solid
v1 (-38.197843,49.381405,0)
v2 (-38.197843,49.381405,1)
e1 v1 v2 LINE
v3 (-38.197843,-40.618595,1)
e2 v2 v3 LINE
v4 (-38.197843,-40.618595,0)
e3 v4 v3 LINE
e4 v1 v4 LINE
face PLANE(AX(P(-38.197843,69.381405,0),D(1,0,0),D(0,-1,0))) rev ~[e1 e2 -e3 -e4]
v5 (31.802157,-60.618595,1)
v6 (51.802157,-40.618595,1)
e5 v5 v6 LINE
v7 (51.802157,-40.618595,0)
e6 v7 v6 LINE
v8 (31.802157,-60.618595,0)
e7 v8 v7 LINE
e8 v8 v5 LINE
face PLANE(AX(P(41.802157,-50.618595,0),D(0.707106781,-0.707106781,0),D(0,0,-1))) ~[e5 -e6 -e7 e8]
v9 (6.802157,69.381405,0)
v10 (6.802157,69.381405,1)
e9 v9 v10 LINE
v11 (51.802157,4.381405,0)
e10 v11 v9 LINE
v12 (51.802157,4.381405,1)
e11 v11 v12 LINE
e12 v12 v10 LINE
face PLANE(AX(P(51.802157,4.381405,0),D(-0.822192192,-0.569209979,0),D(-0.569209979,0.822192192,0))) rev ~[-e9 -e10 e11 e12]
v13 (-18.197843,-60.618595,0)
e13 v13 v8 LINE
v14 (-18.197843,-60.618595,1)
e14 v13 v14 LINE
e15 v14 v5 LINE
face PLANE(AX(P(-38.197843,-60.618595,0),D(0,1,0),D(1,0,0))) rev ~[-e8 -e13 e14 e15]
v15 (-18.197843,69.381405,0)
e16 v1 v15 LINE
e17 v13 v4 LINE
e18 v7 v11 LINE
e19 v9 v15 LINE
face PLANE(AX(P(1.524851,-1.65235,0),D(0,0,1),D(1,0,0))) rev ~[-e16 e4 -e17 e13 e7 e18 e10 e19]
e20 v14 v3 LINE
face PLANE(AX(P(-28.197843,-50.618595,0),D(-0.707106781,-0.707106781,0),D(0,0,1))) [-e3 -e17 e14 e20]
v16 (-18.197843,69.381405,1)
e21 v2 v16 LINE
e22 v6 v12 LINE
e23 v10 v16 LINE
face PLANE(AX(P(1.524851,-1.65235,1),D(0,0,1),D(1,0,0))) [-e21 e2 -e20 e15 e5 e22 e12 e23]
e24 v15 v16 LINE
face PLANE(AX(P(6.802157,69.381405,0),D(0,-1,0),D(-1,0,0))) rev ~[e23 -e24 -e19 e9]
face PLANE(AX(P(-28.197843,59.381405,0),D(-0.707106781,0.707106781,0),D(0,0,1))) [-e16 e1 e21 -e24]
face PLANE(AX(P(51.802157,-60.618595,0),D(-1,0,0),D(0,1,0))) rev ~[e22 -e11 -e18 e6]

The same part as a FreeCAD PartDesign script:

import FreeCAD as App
import Part
import Sketcher

V = App.Vector
Q = App.Units.Quantity


def edges_at(feature, points):
    """Names of the edges that pass closest to the given points."""
    edges = feature.Shape.Edges
    near = lambda p: min(range(len(edges)), key=lambda i: edges[i].distToShape(Part.Vertex(*p))[0])
    return sorted({f"Edge{near(p) + 1}" for p in points})


def add_polygon(sketch, points):
    """Adds a closed chain of lines whose ends are joined by coincident constraints."""
    first, n = sketch.GeometryCount, len(points)
    for a, b in zip(points, points[1:] + points[:1]):
        sketch.addGeometry(Part.LineSegment(App.Vector(*a, 0), App.Vector(*b, 0)), False)
    for i in range(n):
        sketch.addConstraint(Sketcher.Constraint("Coincident", first + i, 2, first + (i + 1) % n, 1))

doc = App.newDocument("Part")
body = doc.addObject("PartDesign::Body", "Body")

sketch1 = doc.addObject("Sketcher::SketchObject", "Sketch")
body.addObject(sketch1)
sketch1.AttachmentSupport = (doc.XY_Plane, [""])
sketch1.MapMode = "FlatFace"
add_polygon(sketch1, [(7, 69), (-38, 69), (-38, -61), (52, -61), (52, 4)])
sketch1.addConstraint([
    Sketcher.Constraint("Horizontal", 0),
    Sketcher.Constraint("Vertical", 1),
    Sketcher.Constraint("Horizontal", 2),
    Sketcher.Constraint("Vertical", 3),
    Sketcher.Constraint("DistanceX", 0, 2, 0, 1, Q("45 mm")),
    Sketcher.Constraint("DistanceX", 2, 1, 2, 2, Q("90 mm")),
    Sketcher.Constraint("DistanceY", 1, 2, 1, 1, Q("130 mm")),
    Sketcher.Constraint("DistanceY", 3, 1, 3, 2, Q("65 mm")),
    Sketcher.Constraint("DistanceX", 0, 2, -1, 1, Q("38.197843 mm")),
    Sketcher.Constraint("DistanceY", -1, 1, 0, 2, Q("69.381405 mm")),
])
pad1 = doc.addObject("PartDesign::Pad", "Pad")
body.addObject(pad1)
pad1.Profile = sketch1
pad1.Length = 1
doc.recompute()

chamfer = doc.addObject("PartDesign::Chamfer", "Chamfer")
body.addObject(chamfer)
chamfer.Base = (pad1, edges_at(pad1, [(51.802, -60.619, 0.5)]))
chamfer.Size = 20
doc.recompute()

chamfer2 = doc.addObject("PartDesign::Chamfer", "Chamfer001")
body.addObject(chamfer2)
chamfer2.Base = (chamfer, edges_at(chamfer, [(-38.198, -60.619, 0.5)]))
chamfer2.Size = 20
doc.recompute()

chamfer3 = doc.addObject("PartDesign::Chamfer", "Chamfer002")
body.addObject(chamfer3)
chamfer3.Base = (chamfer2, edges_at(chamfer2, [(-38.198, 69.381, 0.5)]))
chamfer3.Size = 20

doc.recompute()
